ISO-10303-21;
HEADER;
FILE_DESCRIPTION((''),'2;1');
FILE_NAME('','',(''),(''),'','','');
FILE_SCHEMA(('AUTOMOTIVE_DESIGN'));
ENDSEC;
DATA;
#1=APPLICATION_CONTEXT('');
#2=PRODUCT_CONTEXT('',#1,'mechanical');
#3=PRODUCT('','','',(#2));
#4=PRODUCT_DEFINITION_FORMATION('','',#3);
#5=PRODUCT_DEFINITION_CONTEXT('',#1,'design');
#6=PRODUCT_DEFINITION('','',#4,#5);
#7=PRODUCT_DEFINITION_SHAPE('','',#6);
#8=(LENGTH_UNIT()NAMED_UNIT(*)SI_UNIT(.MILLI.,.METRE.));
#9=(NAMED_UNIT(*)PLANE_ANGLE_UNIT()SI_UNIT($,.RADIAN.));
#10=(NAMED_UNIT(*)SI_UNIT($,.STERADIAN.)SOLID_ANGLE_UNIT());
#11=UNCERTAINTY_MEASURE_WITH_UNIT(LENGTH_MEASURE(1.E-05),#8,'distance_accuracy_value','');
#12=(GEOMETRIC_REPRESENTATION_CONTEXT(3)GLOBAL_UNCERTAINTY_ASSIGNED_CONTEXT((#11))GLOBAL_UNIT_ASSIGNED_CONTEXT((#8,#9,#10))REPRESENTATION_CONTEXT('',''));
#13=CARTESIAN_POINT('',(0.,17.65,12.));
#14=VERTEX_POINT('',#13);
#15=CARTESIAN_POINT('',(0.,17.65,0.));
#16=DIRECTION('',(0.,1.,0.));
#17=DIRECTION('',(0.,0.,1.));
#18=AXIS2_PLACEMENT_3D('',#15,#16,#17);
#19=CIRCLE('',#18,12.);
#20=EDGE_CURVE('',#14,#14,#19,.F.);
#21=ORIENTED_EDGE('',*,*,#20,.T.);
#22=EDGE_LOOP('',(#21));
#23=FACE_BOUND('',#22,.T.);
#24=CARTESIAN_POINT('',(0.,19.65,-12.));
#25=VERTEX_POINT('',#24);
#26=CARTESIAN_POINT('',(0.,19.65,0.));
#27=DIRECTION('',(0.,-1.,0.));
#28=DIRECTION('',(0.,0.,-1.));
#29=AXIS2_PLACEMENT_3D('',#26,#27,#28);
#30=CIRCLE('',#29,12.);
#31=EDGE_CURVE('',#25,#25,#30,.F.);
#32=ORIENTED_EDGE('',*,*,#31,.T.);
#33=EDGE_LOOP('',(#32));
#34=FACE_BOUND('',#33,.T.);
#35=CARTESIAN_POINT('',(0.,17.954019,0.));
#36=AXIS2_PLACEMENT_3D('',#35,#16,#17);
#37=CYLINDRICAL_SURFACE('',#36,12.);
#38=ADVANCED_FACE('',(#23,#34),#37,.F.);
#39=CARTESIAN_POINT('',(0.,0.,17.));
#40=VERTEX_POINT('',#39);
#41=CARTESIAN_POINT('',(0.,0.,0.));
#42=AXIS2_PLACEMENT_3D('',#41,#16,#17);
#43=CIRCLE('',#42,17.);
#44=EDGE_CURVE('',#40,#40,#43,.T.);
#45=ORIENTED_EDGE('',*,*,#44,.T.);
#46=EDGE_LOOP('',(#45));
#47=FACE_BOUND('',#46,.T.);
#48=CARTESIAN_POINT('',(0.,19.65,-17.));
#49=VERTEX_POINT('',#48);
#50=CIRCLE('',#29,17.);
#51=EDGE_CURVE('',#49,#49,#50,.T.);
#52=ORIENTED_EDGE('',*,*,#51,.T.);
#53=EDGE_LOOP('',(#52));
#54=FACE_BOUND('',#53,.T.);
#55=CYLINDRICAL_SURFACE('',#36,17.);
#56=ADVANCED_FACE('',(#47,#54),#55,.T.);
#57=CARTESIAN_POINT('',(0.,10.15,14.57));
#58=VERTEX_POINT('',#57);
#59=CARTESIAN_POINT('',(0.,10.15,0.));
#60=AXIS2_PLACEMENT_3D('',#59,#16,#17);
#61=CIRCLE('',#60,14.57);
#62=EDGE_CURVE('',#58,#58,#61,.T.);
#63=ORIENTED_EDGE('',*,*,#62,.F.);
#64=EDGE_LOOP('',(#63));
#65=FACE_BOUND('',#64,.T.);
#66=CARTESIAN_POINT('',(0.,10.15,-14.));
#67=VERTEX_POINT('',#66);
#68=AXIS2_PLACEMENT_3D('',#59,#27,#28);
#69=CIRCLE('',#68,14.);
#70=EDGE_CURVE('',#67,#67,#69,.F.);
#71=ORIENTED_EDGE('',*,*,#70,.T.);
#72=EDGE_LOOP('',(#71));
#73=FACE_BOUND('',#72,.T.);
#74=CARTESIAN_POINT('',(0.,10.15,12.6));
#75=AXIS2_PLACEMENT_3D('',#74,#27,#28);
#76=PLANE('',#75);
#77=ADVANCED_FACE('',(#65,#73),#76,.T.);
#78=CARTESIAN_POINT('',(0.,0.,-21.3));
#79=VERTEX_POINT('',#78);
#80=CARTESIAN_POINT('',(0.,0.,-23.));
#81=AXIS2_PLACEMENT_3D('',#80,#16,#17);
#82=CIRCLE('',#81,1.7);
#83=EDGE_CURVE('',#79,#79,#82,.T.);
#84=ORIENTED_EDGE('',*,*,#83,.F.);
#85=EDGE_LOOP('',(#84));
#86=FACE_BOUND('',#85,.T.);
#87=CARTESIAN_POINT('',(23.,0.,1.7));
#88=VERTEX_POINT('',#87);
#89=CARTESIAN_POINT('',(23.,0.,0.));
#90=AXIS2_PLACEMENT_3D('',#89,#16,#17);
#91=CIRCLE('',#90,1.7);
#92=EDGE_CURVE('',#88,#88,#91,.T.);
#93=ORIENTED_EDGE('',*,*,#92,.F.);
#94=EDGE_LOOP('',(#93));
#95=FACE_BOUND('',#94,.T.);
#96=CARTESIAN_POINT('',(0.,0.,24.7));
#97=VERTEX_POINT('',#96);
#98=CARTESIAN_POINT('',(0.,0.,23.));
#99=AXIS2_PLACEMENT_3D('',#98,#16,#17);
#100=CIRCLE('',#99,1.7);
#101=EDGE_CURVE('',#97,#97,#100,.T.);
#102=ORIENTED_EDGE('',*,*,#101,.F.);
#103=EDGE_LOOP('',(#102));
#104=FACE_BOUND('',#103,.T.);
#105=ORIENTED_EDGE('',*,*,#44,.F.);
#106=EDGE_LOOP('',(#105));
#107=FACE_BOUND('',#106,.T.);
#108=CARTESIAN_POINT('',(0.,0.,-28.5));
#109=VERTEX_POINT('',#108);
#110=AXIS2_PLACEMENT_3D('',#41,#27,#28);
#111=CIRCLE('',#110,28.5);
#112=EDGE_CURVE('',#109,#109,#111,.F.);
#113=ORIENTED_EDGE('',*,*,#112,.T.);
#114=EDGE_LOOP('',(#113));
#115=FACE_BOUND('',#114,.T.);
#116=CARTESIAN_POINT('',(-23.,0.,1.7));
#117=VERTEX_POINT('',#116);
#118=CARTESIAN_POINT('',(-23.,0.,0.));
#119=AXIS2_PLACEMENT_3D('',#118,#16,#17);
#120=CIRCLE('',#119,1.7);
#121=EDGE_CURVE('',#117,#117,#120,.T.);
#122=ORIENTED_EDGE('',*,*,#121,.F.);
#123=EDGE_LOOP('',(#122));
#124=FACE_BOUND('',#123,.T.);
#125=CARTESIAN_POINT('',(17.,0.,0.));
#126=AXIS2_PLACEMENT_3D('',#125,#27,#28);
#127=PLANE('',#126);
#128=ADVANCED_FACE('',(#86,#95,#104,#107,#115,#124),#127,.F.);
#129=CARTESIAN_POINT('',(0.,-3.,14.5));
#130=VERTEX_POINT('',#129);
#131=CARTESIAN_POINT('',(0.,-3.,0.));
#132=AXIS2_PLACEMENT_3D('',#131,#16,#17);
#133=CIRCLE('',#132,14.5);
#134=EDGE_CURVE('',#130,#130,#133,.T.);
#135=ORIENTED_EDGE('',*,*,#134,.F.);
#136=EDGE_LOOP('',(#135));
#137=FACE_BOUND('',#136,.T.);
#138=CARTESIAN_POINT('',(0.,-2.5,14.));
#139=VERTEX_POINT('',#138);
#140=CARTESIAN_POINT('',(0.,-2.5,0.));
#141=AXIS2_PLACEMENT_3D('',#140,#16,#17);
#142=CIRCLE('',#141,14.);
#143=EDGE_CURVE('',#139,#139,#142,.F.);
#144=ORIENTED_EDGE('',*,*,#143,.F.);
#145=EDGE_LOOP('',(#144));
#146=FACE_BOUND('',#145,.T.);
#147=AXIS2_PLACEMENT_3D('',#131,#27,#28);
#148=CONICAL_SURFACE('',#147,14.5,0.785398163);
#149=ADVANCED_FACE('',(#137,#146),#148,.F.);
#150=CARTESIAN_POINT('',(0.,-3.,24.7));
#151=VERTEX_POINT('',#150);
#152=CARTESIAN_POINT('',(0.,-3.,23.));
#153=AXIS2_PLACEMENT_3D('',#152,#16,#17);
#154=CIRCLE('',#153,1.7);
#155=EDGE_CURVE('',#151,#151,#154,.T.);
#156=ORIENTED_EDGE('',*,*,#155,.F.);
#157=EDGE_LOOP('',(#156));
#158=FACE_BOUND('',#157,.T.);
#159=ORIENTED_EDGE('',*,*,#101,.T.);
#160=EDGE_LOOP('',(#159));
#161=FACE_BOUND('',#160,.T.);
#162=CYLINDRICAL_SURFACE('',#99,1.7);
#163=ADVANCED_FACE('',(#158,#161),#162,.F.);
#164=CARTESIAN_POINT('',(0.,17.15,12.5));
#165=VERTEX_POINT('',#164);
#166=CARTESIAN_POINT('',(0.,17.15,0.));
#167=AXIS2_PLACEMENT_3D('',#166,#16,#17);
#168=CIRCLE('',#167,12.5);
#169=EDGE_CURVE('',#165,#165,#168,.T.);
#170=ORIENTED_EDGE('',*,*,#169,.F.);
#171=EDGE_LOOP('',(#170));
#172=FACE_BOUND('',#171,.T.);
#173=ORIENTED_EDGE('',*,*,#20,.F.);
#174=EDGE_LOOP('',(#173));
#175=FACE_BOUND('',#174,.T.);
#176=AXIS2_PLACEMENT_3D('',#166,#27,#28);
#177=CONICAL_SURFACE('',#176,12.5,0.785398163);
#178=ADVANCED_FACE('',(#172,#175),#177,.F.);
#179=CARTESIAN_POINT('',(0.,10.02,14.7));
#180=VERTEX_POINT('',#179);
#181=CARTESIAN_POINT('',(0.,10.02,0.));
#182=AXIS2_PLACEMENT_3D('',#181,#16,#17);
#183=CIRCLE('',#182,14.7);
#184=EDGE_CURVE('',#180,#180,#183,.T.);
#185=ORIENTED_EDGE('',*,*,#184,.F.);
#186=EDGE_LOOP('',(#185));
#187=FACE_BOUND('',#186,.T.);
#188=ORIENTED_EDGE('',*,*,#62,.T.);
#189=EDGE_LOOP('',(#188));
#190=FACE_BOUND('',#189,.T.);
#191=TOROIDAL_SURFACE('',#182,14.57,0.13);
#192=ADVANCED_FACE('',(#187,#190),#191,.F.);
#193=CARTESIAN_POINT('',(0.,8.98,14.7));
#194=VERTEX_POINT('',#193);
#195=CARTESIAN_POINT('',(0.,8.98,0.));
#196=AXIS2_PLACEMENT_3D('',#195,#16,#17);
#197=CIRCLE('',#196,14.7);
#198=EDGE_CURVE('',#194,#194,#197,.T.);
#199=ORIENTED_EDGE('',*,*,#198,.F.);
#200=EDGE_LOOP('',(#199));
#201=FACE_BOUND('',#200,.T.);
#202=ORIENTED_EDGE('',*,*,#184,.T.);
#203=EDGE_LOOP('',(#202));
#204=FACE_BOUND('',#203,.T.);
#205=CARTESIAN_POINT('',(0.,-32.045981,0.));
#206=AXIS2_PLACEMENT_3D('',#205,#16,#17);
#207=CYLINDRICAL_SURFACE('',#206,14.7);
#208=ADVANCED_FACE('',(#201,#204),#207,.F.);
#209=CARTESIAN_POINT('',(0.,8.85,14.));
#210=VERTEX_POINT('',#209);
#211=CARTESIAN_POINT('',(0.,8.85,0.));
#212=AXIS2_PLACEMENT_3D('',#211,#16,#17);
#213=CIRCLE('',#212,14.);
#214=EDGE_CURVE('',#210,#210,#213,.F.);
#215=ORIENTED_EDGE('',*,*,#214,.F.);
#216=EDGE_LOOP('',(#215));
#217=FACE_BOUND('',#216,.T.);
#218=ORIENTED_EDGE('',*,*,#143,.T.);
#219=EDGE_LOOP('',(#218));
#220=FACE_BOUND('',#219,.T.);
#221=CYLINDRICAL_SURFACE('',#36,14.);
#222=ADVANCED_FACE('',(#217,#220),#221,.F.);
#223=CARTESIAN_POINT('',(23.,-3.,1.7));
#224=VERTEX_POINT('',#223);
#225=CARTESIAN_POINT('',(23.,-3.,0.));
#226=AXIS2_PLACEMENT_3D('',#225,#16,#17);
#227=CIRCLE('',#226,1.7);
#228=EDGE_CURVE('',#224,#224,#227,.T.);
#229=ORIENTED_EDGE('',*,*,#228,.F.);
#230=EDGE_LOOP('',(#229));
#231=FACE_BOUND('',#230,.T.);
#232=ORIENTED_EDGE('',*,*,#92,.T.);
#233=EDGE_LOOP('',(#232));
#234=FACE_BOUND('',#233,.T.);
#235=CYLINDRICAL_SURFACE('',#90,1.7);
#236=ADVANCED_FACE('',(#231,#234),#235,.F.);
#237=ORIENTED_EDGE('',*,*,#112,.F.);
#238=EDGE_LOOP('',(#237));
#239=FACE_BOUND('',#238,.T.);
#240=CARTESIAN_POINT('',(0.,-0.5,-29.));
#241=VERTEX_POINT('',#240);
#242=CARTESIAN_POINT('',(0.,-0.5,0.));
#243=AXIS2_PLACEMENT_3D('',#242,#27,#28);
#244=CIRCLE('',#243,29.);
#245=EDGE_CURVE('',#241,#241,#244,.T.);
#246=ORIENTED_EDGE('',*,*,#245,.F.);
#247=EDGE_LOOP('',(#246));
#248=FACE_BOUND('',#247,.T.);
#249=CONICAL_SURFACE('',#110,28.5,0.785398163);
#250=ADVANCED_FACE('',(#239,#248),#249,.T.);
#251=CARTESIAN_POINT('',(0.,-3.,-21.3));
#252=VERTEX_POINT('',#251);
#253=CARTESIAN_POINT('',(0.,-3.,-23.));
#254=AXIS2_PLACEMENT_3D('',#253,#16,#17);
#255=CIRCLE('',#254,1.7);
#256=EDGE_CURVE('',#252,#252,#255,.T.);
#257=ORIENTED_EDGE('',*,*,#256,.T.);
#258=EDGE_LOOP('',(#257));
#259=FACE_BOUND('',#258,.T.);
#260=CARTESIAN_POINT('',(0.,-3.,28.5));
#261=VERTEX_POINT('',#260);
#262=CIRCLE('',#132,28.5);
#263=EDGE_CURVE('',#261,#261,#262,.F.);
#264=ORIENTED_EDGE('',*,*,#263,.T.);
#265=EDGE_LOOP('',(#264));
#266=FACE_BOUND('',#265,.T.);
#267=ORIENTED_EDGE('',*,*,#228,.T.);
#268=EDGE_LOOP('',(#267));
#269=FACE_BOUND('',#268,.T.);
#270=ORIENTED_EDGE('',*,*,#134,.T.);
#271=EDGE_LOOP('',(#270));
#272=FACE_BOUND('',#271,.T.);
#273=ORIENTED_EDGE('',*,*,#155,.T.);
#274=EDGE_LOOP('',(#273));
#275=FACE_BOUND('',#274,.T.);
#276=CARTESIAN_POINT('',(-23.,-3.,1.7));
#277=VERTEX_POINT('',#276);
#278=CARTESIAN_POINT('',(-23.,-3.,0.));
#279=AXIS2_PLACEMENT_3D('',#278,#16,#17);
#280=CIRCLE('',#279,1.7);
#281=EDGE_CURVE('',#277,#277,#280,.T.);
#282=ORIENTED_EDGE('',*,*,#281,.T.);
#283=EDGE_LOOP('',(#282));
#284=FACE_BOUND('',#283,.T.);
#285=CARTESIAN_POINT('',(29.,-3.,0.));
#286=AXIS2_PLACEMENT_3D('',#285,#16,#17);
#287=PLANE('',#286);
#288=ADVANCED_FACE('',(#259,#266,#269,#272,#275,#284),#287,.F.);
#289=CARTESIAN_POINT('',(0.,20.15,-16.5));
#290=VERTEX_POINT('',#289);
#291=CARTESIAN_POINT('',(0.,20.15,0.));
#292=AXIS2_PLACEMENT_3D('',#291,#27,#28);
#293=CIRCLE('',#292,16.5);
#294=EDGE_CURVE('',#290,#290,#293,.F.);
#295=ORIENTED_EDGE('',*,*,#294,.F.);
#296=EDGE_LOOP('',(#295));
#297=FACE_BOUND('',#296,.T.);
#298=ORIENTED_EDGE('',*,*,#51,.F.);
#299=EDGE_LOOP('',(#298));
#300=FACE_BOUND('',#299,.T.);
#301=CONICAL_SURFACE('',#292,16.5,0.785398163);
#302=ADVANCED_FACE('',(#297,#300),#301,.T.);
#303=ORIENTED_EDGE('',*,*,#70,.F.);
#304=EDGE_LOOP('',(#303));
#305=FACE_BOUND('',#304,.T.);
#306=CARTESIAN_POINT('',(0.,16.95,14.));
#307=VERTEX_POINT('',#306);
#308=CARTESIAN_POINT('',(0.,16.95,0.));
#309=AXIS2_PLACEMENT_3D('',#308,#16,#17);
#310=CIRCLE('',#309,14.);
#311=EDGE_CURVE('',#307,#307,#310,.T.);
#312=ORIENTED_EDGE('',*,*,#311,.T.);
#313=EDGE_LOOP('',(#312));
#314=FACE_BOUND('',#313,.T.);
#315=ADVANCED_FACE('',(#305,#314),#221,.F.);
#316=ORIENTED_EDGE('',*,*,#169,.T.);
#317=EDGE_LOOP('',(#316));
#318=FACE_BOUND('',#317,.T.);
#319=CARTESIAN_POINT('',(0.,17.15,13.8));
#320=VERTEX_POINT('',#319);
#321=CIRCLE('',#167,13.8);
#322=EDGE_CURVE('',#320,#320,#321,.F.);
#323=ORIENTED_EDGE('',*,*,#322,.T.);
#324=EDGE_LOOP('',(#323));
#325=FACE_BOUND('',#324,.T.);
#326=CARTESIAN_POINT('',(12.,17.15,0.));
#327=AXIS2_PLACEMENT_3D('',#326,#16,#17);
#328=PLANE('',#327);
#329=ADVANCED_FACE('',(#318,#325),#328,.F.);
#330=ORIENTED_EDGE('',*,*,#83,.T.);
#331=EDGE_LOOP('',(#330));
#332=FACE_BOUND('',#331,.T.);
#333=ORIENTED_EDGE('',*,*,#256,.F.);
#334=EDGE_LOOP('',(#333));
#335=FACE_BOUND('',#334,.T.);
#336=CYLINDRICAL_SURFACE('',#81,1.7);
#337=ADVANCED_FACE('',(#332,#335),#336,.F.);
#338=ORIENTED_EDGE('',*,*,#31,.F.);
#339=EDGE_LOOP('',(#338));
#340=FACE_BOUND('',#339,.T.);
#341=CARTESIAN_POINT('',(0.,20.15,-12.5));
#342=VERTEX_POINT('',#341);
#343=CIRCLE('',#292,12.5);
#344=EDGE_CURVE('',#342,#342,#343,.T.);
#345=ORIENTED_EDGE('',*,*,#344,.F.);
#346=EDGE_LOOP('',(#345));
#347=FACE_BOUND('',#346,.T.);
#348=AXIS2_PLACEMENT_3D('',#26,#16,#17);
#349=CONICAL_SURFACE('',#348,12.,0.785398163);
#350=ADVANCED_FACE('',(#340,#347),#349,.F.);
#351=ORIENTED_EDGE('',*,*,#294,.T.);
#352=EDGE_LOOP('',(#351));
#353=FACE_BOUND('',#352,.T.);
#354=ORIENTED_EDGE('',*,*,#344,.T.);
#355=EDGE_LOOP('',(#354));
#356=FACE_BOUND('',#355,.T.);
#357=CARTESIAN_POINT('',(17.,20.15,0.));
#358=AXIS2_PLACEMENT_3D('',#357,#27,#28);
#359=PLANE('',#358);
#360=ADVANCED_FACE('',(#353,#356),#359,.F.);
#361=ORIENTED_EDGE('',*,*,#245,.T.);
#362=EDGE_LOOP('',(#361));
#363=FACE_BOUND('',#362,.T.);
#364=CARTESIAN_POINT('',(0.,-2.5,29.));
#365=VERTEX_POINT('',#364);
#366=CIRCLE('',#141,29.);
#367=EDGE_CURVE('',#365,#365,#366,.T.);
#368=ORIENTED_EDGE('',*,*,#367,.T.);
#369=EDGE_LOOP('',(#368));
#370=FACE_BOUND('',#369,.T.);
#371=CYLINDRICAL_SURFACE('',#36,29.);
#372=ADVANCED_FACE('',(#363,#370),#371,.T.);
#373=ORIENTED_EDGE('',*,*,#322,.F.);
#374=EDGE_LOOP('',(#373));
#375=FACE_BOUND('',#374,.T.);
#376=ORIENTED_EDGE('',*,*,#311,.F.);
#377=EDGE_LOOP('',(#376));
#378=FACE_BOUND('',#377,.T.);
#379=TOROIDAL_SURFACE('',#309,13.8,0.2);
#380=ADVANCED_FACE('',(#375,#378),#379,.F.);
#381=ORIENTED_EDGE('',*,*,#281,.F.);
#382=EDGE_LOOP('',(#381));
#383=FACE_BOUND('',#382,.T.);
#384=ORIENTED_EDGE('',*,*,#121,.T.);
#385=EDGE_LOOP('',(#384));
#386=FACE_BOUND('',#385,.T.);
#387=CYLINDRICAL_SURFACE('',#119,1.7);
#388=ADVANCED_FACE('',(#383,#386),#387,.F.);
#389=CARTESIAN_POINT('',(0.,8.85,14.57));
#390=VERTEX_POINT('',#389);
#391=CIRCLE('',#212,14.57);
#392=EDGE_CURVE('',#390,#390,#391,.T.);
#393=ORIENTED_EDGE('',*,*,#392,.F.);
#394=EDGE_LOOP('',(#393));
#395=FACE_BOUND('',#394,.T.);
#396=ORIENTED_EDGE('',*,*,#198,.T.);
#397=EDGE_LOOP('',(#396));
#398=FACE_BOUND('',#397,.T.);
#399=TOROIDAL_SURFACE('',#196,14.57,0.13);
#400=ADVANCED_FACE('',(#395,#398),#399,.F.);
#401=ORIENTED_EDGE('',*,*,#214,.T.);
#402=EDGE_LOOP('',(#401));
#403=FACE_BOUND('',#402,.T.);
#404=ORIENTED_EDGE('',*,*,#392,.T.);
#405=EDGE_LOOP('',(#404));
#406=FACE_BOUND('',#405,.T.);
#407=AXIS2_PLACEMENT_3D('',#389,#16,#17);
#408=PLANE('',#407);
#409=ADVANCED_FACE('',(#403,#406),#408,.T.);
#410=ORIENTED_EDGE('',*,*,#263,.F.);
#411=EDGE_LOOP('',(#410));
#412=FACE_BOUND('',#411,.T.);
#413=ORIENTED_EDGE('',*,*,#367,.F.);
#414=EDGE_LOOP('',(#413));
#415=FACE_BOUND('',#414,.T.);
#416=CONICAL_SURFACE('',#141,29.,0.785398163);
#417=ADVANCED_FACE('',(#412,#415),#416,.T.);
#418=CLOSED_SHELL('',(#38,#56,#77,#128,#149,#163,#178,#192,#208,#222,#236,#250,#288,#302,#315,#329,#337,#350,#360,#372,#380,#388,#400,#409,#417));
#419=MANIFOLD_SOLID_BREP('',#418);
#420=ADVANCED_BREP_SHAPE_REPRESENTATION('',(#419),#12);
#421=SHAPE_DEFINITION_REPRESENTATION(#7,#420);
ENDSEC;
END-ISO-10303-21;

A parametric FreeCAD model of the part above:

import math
import FreeCAD as App
import Part
import Sketcher

V = App.Vector
Q = App.Units.Quantity


def edges_at(feature, points):
    """Names of the edges that pass closest to the given points."""
    edges = feature.Shape.Edges
    near = lambda p: min(range(len(edges)), key=lambda i: edges[i].distToShape(Part.Vertex(*p))[0])
    return sorted({f"Edge{near(p) + 1}" for p in points})


def add_polygon(sketch, points):
    """Adds a closed chain of lines whose ends are joined by coincident constraints."""
    first, n = sketch.GeometryCount, len(points)
    for a, b in zip(points, points[1:] + points[:1]):
        sketch.addGeometry(Part.LineSegment(App.Vector(*a, 0), App.Vector(*b, 0)), False)
    for i in range(n):
        sketch.addConstraint(Sketcher.Constraint("Coincident", first + i, 2, first + (i + 1) % n, 1))

doc = App.newDocument("Part")
body = doc.addObject("PartDesign::Body", "Body")

sketch1 = body.newObject("Sketcher::SketchObject", "Sketch")
sketch1.AttachmentSupport = (doc.getObject("XY_Plane"), [""])
sketch1.MapMode = "FlatFace"
add_polygon(sketch1, [(14, 17.1), (14, -3), (29, -3), (29, 0), (17, 0), (17, 20.1), (12, 20.1), (12, 17.1)])
sketch1.addConstraint([
    Sketcher.Constraint("Vertical", 0),
    Sketcher.Constraint("Horizontal", 1),
    Sketcher.Constraint("Vertical", 2),
    Sketcher.Constraint("Horizontal", 3),
    Sketcher.Constraint("Vertical", 4),
    Sketcher.Constraint("Horizontal", 5),
    Sketcher.Constraint("Vertical", 6),
    Sketcher.Constraint("Horizontal", 7),
    Sketcher.Constraint("PointOnObject", 2, 2, -1),
    Sketcher.Constraint("Equal", 0, 4),
    Sketcher.Constraint("DistanceX", 1, 1, 1, 2, Q("15 mm")),
    Sketcher.Constraint("DistanceX", 3, 2, 3, 1, Q("12 mm")),
    Sketcher.Constraint("DistanceX", 5, 2, 5, 1, Q("5 mm")),
    Sketcher.Constraint("DistanceY", 2, 1, 2, 2, Q("3 mm")),
    Sketcher.Constraint("DistanceX", -1, 1, 0, 2, Q("14 mm")),
    Sketcher.Constraint("DistanceY", 0, 2, 0, 1, Q("20.15 mm")),
])
revolution = body.newObject("PartDesign::Revolution", "Revolution")
revolution.Profile = sketch1
revolution.ReferenceAxis = (sketch1, ["V_Axis"])
revolution.Angle = 360

sketch2 = body.newObject("Sketcher::SketchObject", "Sketch001")
sketch2.AttachmentSupport = (doc.getObject("XZ_Plane"), [""])
sketch2.MapMode = "FlatFace"
sketch2.addGeometry([
    Part.Circle(V(0, -23, 0), V(0, 0, 1), 1.7),
    Part.Circle(V(23, 0, 0), V(0, 0, 1), 1.7),
    Part.Circle(V(0, 23, 0), V(0, 0, 1), 1.7),
    Part.Circle(V(-23, 0, 0), V(0, 0, 1), 1.7),
], False)
sketch2.addConstraint([
    Sketcher.Constraint("Equal", 0, 1),
    Sketcher.Constraint("Equal", 1, 2),
    Sketcher.Constraint("Equal", 2, 3),
    Sketcher.Constraint("Symmetric", 0, 3, 2, 3, -1, 1),
    Sketcher.Constraint("Symmetric", 1, 3, 3, 3, -1, 1),
    Sketcher.Constraint("PointOnObject", 0, 3, -2),
    Sketcher.Constraint("PointOnObject", 1, 3, -1),
    Sketcher.Constraint("Diameter", 0, Q("3.4 mm")),
    Sketcher.Constraint("DistanceY", 0, 3, -1, 1, Q("23 mm")),
    Sketcher.Constraint("DistanceX", -1, 1, 1, 3, Q("23 mm")),
])
doc.recompute()
hole = body.newObject("PartDesign::Hole", "Hole")
hole.Profile = sketch2
hole.ThreadType = "None"
hole.Diameter = 3.4
hole.DepthType = "ThroughAll"
hole.Reversed = True
doc.recompute()

fillet = body.newObject("PartDesign::Fillet", "Fillet")
fillet.Base = (hole, edges_at(hole, [(0, 17.15, -14)]))
fillet.Radius = 0.2
doc.recompute()

chamfer = body.newObject("PartDesign::Chamfer", "Chamfer")
chamfer.Base = (fillet, edges_at(fillet, [
    (0, 17.15, -12),
    (0, 20.15, -12),
    (0, 20.15, -17),
    (0, 0, -29),
    (0, -3, -29),
    (0, -3, -14),
]))
chamfer.Size = 0.5

sketch3 = body.newObject("Sketcher::SketchObject", "Sketch002")
sketch3.AttachmentSupport = (doc.getObject("YZ_Plane"), [""])
sketch3.MapMode = "FlatFace"
sketch3.addGeometry([
    Part.LineSegment(V(8.85, 12.6, 0), V(8.85, 14.57, 0)),
    Part.ArcOfCircle(Part.Circle(V(8.98, 14.57, 0), V(0, 0, 1), 0.13), math.radians(90), math.radians(180)),
    Part.LineSegment(V(8.98, 14.7, 0), V(10.02, 14.7, 0)),
    Part.ArcOfCircle(Part.Circle(V(10.02, 14.57, 0), V(0, 0, 1), 0.13), math.radians(0), math.radians(90)),
    Part.LineSegment(V(10.15, 14.57, 0), V(10.15, 12.6, 0)),
    Part.LineSegment(V(10.15, 12.6, 0), V(8.85, 12.6, 0)),
], False)
sketch3.addConstraint([
    Sketcher.Constraint("Tangent", 0, 2, 1, 2),
    Sketcher.Constraint("Tangent", 1, 1, 2, 1),
    Sketcher.Constraint("Tangent", 2, 2, 3, 2),
    Sketcher.Constraint("Tangent", 3, 1, 4, 1),
    Sketcher.Constraint("Coincident", 4, 2, 5, 1),
    Sketcher.Constraint("Coincident", 5, 2, 0, 1),
    Sketcher.Constraint("Vertical", 0),
    Sketcher.Constraint("Horizontal", 2),
    Sketcher.Constraint("Vertical", 4),
    Sketcher.Constraint("Horizontal", 5),
    Sketcher.Constraint("Equal", 1, 3),
    Sketcher.Constraint("Radius", 1, Q("0.13 mm")),
    Sketcher.Constraint("DistanceX", 5, 2, 5, 1, Q("1.3 mm")),
    Sketcher.Constraint("DistanceY", 0, 1, 0, 2, Q("1.97 mm")),
    Sketcher.Constraint("DistanceY", -1, 1, 1, 1, Q("14.7 mm")),
    Sketcher.Constraint("DistanceX", -1, 1, 1, 3, Q("8.98 mm")),
])
groove = body.newObject("PartDesign::Groove", "Groove")
groove.Profile = sketch3
groove.ReferenceAxis = (sketch3, ["H_Axis"])
groove.Angle = 360

doc.recompute()
